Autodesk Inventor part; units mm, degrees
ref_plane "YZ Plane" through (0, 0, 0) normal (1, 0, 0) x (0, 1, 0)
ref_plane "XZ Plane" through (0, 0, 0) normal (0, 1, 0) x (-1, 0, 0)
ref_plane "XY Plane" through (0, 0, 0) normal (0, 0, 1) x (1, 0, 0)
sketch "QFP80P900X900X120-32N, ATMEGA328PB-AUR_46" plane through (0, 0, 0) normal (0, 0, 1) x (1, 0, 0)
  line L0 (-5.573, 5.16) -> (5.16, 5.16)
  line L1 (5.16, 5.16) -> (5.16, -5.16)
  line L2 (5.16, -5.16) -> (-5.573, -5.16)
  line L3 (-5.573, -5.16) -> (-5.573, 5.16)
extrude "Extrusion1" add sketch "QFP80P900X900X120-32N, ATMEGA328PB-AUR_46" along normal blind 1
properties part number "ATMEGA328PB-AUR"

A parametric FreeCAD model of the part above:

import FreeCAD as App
import Part
import Sketcher

doc = App.newDocument("Part")
body = doc.addObject("PartDesign::Body", "Body")

# Sketch on XY plane
sketch1 = doc.addObject("Sketcher::SketchObject", "Sketch")
body.addObject(sketch1)
sketch1.AttachmentSupport = (doc.XY_Plane, [""])
sketch1.MapMode = "FlatFace"
sketch1.addGeometry(Part.LineSegment(App.Vector(5, 5, 0), App.Vector(-6, 5, 0)), False)
sketch1.addGeometry(Part.LineSegment(App.Vector(-6, 5, 0), App.Vector(-6, -5, 0)), False)
sketch1.addGeometry(Part.LineSegment(App.Vector(-6, -5, 0), App.Vector(5, -5, 0)), False)
sketch1.addGeometry(Part.LineSegment(App.Vector(5, -5, 0), App.Vector(5, 5, 0)), False)
sketch1.addConstraint(Sketcher.Constraint("Coincident", 0, 2, 1, 1))
sketch1.addConstraint(Sketcher.Constraint("Coincident", 1, 2, 2, 1))
sketch1.addConstraint(Sketcher.Constraint("Coincident", 2, 2, 3, 1))
sketch1.addConstraint(Sketcher.Constraint("Coincident", 3, 2, 0, 1))
sketch1.addConstraint(Sketcher.Constraint("Horizontal", 0))
sketch1.addConstraint(Sketcher.Constraint("Vertical", 1))
sketch1.addConstraint(Sketcher.Constraint("Horizontal", 2))
sketch1.addConstraint(Sketcher.Constraint("Vertical", 3))
sketch1.addConstraint(Sketcher.Constraint("DistanceY", 1, 2, 1, 1, 10.32))
sketch1.addConstraint(Sketcher.Constraint("DistanceX", 0, 2, 0, 1, 10.733))
sketch1.addConstraint(Sketcher.Constraint("DistanceY", -1, 1, 0, 2, 5.16))
sketch1.addConstraint(Sketcher.Constraint("DistanceX", -1, 1, 2, 2, 5.16))
pad1 = doc.addObject("PartDesign::Pad", "Pad")
body.addObject(pad1)
pad1.Profile = sketch1
pad1.Length = 1

doc.recompute()
